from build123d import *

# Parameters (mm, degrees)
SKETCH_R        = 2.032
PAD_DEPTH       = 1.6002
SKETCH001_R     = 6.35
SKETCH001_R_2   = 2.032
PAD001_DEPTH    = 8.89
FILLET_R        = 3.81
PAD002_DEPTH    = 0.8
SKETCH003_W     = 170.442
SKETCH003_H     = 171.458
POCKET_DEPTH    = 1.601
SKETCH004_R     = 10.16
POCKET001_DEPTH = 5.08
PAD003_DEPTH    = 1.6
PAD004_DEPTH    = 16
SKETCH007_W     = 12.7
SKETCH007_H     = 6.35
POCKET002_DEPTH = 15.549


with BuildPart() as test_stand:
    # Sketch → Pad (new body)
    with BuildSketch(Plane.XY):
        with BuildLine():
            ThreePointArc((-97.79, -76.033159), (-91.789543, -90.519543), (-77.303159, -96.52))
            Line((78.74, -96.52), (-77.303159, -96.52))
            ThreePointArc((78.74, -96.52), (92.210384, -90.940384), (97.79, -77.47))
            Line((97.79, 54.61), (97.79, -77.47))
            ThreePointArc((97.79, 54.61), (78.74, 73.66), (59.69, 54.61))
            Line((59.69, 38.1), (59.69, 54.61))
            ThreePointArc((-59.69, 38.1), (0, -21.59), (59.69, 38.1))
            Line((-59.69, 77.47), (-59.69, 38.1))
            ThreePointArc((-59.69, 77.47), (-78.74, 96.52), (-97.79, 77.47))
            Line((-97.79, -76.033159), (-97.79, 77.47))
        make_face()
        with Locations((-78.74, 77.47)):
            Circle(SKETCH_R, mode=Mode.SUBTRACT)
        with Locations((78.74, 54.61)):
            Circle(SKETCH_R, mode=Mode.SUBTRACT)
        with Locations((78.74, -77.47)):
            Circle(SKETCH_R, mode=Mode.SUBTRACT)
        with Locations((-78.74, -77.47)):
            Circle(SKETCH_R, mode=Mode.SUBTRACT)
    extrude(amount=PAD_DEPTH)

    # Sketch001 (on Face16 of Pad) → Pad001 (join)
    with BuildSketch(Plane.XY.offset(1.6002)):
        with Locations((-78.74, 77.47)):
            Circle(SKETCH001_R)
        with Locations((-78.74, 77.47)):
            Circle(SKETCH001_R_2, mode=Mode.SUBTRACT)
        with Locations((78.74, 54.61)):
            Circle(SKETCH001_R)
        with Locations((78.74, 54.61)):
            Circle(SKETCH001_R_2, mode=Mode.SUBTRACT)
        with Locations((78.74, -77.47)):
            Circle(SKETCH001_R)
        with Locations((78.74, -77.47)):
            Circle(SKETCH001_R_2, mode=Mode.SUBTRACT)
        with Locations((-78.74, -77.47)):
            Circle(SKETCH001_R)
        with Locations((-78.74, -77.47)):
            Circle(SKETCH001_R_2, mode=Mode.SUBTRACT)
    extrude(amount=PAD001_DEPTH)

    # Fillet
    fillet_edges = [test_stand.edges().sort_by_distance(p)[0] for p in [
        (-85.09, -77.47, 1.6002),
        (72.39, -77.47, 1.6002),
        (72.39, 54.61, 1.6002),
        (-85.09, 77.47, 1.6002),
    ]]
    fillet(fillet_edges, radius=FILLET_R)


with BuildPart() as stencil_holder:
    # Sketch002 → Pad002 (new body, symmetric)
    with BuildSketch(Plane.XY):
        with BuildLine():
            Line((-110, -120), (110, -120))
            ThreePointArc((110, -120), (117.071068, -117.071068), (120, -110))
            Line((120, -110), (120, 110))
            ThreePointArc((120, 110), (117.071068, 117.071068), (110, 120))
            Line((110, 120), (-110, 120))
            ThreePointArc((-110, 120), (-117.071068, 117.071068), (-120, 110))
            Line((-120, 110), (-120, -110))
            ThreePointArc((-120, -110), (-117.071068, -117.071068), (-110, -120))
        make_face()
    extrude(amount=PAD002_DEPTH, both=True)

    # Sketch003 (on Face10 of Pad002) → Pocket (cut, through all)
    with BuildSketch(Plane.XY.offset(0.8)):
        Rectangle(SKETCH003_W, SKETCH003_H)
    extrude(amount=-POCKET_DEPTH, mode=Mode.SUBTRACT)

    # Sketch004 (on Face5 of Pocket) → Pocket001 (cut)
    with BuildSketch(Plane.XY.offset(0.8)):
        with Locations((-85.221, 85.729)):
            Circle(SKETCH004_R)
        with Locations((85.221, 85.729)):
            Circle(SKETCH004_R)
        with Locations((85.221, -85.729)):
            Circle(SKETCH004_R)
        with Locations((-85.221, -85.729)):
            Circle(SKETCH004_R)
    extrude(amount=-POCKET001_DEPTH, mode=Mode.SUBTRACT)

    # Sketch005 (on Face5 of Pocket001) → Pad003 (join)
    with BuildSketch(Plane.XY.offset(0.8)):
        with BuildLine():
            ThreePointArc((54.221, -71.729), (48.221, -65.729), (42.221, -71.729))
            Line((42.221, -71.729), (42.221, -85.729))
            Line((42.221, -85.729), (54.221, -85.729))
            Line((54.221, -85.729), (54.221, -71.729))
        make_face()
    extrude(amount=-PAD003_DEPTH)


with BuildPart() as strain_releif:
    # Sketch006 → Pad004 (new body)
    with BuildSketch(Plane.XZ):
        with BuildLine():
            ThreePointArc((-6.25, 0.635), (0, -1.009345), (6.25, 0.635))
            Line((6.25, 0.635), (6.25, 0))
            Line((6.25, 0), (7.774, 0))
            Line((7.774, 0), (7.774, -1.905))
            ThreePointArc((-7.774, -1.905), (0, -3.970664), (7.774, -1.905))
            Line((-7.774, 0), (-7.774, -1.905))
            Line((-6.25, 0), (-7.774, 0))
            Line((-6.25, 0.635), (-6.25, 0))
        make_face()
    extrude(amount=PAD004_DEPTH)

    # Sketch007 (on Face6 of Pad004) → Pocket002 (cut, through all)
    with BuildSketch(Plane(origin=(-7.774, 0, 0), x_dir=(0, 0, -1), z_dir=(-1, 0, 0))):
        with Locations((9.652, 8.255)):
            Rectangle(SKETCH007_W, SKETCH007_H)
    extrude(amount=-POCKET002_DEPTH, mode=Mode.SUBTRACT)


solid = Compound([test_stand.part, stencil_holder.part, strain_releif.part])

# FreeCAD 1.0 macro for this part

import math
import FreeCAD as App
import Part
import Sketcher
from FreeCAD import Vector
Q = App.Units.Quantity


def edges_at(feature, points):
    """Names of the edges that pass closest to the given points."""
    edges = feature.Shape.Edges
    near = lambda p: min(range(len(edges)), key=lambda i: edges[i].distToShape(Part.Vertex(*p))[0])
    return sorted({f"Edge{near(p) + 1}" for p in points})

doc = App.newDocument("Part")
body = doc.addObject("PartDesign::Body", "Body")

# Sketch on XY plane
sketch1 = doc.addObject("Sketcher::SketchObject", "Sketch")
body.addObject(sketch1)
sketch1.AttachmentSupport = (doc.XY_Plane, [""])
sketch1.MapMode = "FlatFace"
sketch1.addGeometry(Part.ArcOfCircle(Part.Circle(Vector(-77.3, -76, 0), Vector(0, 0, 1), 20.5), math.radians(-180), math.radians(-90)), False)
sketch1.addGeometry(Part.LineSegment(Vector(-77.3, -96.5, 0), Vector(78.7, -96.5, 0)), False)
sketch1.addGeometry(Part.ArcOfCircle(Part.Circle(Vector(78.7, -77.5, 0), Vector(0, 0, 1), 19.1), math.radians(-90), math.radians(0)), False)
sketch1.addGeometry(Part.LineSegment(Vector(97.8, -77.5, 0), Vector(97.8, 54.6, 0)), False)
sketch1.addGeometry(Part.ArcOfCircle(Part.Circle(Vector(78.7, 54.6, 0), Vector(0, 0, 1), 19.1), math.radians(0), math.radians(180)), False)
sketch1.addGeometry(Part.LineSegment(Vector(59.7, 54.6, 0), Vector(59.7, 38.1, 0)), False)
sketch1.addGeometry(Part.ArcOfCircle(Part.Circle(Vector(0, 38.1, 0), Vector(0, 0, 1), 59.7), math.radians(180), math.radians(360)), False)
sketch1.addGeometry(Part.LineSegment(Vector(-59.7, 38.1, 0), Vector(-59.7, 77.5, 0)), False)
sketch1.addGeometry(Part.ArcOfCircle(Part.Circle(Vector(-78.7, 77.5, 0), Vector(0, 0, 1), 19.1), math.radians(0), math.radians(180)), False)
sketch1.addGeometry(Part.LineSegment(Vector(-97.8, 77.5, 0), Vector(-97.8, -76, 0)), False)
sketch1.addGeometry(Part.Circle(Vector(-78.7, -77.5, 0), Vector(0, 0, 1), 2), False)
sketch1.addGeometry(Part.Circle(Vector(78.7, -77.5, 0), Vector(0, 0, 1), 2), False)
sketch1.addGeometry(Part.Circle(Vector(-78.7, 77.5, 0), Vector(0, 0, 1), 2), False)
sketch1.addGeometry(Part.Circle(Vector(78.7, 54.6, 0), Vector(0, 0, 1), 2), False)
sketch1.addConstraint(Sketcher.Constraint("Tangent", 0, 2, 1, 1))
sketch1.addConstraint(Sketcher.Constraint("Tangent", 1, 2, 2, 1))
sketch1.addConstraint(Sketcher.Constraint("Tangent", 2, 2, 3, 1))
sketch1.addConstraint(Sketcher.Constraint("Tangent", 3, 2, 4, 1))
sketch1.addConstraint(Sketcher.Constraint("Tangent", 4, 2, 5, 1))
sketch1.addConstraint(Sketcher.Constraint("Tangent", 5, 2, 6, 2))
sketch1.addConstraint(Sketcher.Constraint("Tangent", 6, 1, 7, 1))
sketch1.addConstraint(Sketcher.Constraint("Tangent", 7, 2, 8, 1))
sketch1.addConstraint(Sketcher.Constraint("Tangent", 8, 2, 9, 1))
sketch1.addConstraint(Sketcher.Constraint("Tangent", 9, 2, 0, 1))
sketch1.addConstraint(Sketcher.Constraint("Horizontal", 1))
sketch1.addConstraint(Sketcher.Constraint("Vertical", 3))
sketch1.addConstraint(Sketcher.Constraint("Vertical", 5))
sketch1.addConstraint(Sketcher.Constraint("Vertical", 7))
sketch1.addConstraint(Sketcher.Constraint("Vertical", 9))
sketch1.addConstraint(Sketcher.Constraint("Coincident", 11, 3, 2, 3))
sketch1.addConstraint(Sketcher.Constraint("Coincident", 12, 3, 8, 3))
sketch1.addConstraint(Sketcher.Constraint("Coincident", 13, 3, 4, 3))
sketch1.addConstraint(Sketcher.Constraint("Equal", 2, 4))
sketch1.addConstraint(Sketcher.Constraint("Equal", 4, 8))
sketch1.addConstraint(Sketcher.Constraint("Equal", 10, 11))
sketch1.addConstraint(Sketcher.Constraint("Equal", 11, 12))
sketch1.addConstraint(Sketcher.Constraint("Equal", 12, 13))
sketch1.addConstraint(Sketcher.Constraint("Symmetric", 2, 3, 8, 3, -1, 1))
sketch1.addConstraint(Sketcher.Constraint("Symmetric", 2, 3, 10, 3, -2))
sketch1.addConstraint(Sketcher.Constraint("Diameter", 10, Q("0.16 in")))
sketch1.addConstraint(Sketcher.Constraint("Radius", 2, Q("0.75 in")))
sketch1.addConstraint(Sketcher.Constraint("Radius", 6, Q("2.35 in")))
sketch1.addConstraint(Sketcher.Constraint("DistanceY", 3, 1, 3, 2, Q("5.2 in")))
sketch1.addConstraint(Sketcher.Constraint("DistanceY", 5, 2, 5, 1, Q("0.65 in")))
sketch1.addConstraint(Sketcher.Constraint("DistanceY", 7, 1, 7, 2, Q("1.55 in")))
sketch1.addConstraint(Sketcher.Constraint("Radius", 0, 20.486842))
pad1 = doc.addObject("PartDesign::Pad", "Pad")
body.addObject(pad1)
pad1.Profile = sketch1
pad1.Length = Q("0.063 in")

# Sketch on XY plane
sketch2 = doc.addObject("Sketcher::SketchObject", "Sketch001")
body.addObject(sketch2)
sketch2.AttachmentSupport = (doc.XY_Plane, [""])
sketch2.MapMode = "FlatFace"
sketch2.AttachmentOffset = App.Placement(Vector(0, 0, 0.063 * 25.4), App.Rotation())
sketch2.addGeometry(Part.Circle(Vector(-78.7, 77.5, 0), Vector(0, 0, 1), 6.3), False)
sketch2.addGeometry(Part.Circle(Vector(-78.7, 77.5, 0), Vector(0, 0, 1), 2), False)
sketch2.addGeometry(Part.Circle(Vector(78.7, 54.6, 0), Vector(0, 0, 1), 6.3), False)
sketch2.addGeometry(Part.Circle(Vector(78.7, 54.6, 0), Vector(0, 0, 1), 2), False)
sketch2.addGeometry(Part.Circle(Vector(78.7, -77.5, 0), Vector(0, 0, 1), 6.3), False)
sketch2.addGeometry(Part.Circle(Vector(78.7, -77.5, 0), Vector(0, 0, 1), 2), False)
sketch2.addGeometry(Part.Circle(Vector(-78.7, -77.5, 0), Vector(0, 0, 1), 6.3), False)
sketch2.addGeometry(Part.Circle(Vector(-78.7, -77.5, 0), Vector(0, 0, 1), 2), False)
sketch2.addConstraint(Sketcher.Constraint("Coincident", 1, 3, 0, 3))
sketch2.addConstraint(Sketcher.Constraint("Coincident", 3, 3, 2, 3))
sketch2.addConstraint(Sketcher.Constraint("Coincident", 5, 3, 4, 3))
sketch2.addConstraint(Sketcher.Constraint("Coincident", 7, 3, 6, 3))
sketch2.addConstraint(Sketcher.Constraint("Equal", 0, 2))
sketch2.addConstraint(Sketcher.Constraint("Equal", 1, 3))
sketch2.addConstraint(Sketcher.Constraint("Equal", 2, 4))
sketch2.addConstraint(Sketcher.Constraint("Equal", 3, 5))
sketch2.addConstraint(Sketcher.Constraint("Equal", 4, 6))
sketch2.addConstraint(Sketcher.Constraint("Equal", 5, 7))
sketch2.addConstraint(Sketcher.Constraint("Symmetric", 0, 3, 4, 3, -1, 1))
sketch2.addConstraint(Sketcher.Constraint("Symmetric", 4, 3, 6, 3, -2))
sketch2.addConstraint(Sketcher.Constraint("Vertical", 3, 3, 4, 3))
sketch2.addConstraint(Sketcher.Constraint("Diameter", 0, Q("0.5 in")))
sketch2.addConstraint(Sketcher.Constraint("Diameter", 1, Q("0.16 in")))
sketch2.addConstraint(Sketcher.Constraint("DistanceX", 0, 3, -1, 1, Q("3.1 in")))
sketch2.addConstraint(Sketcher.Constraint("DistanceY", 2, 3, 0, 3, Q("0.9 in")))
sketch2.addConstraint(Sketcher.Constraint("DistanceY", 4, 3, 2, 3, Q("5.2 in")))
pad2 = doc.addObject("PartDesign::Pad", "Pad001")
body.addObject(pad2)
pad2.Profile = sketch2
pad2.Length = Q("0.35 in")
doc.recompute()

fillet = doc.addObject("PartDesign::Fillet", "Fillet")
body.addObject(fillet)
fillet.Base = (pad2, edges_at(pad2, [
    (-85.09, -77.47, 1.6),
    (72.39, -77.47, 1.6),
    (72.39, 54.61, 1.6),
    (-85.09, 77.47, 1.6),
]))
fillet.Radius = Q("0.15 in")
body2 = doc.addObject("PartDesign::Body", "Body001")

# Sketch on XY plane
sketch3 = doc.addObject("Sketcher::SketchObject", "Sketch002")
body2.addObject(sketch3)
sketch3.AttachmentSupport = (doc.getObject("XY_Plane001"), [""])
sketch3.MapMode = "FlatFace"
sketch3.addGeometry(Part.LineSegment(Vector(-110, -120, 0), Vector(110, -120, 0)), False)
sketch3.addGeometry(Part.ArcOfCircle(Part.Circle(Vector(110, -110, 0), Vector(0, 0, 1), 10), math.radians(-90), math.radians(0)), False)
sketch3.addGeometry(Part.LineSegment(Vector(120, -110, 0), Vector(120, 110, 0)), False)
sketch3.addGeometry(Part.ArcOfCircle(Part.Circle(Vector(110, 110, 0), Vector(0, 0, 1), 10), math.radians(0), math.radians(90)), False)
sketch3.addGeometry(Part.LineSegment(Vector(110, 120, 0), Vector(-110, 120, 0)), False)
sketch3.addGeometry(Part.ArcOfCircle(Part.Circle(Vector(-110, 110, 0), Vector(0, 0, 1), 10), math.radians(90), math.radians(180)), False)
sketch3.addGeometry(Part.LineSegment(Vector(-120, 110, 0), Vector(-120, -110, 0)), False)
sketch3.addGeometry(Part.ArcOfCircle(Part.Circle(Vector(-110, -110, 0), Vector(0, 0, 1), 10), math.radians(180), math.radians(270)), False)
sketch3.addConstraint(Sketcher.Constraint("Tangent", 0, 2, 1, 1))
sketch3.addConstraint(Sketcher.Constraint("Tangent", 1, 2, 2, 1))
sketch3.addConstraint(Sketcher.Constraint("Tangent", 2, 2, 3, 1))
sketch3.addConstraint(Sketcher.Constraint("Tangent", 3, 2, 4, 1))
sketch3.addConstraint(Sketcher.Constraint("Tangent", 4, 2, 5, 1))
sketch3.addConstraint(Sketcher.Constraint("Tangent", 5, 2, 6, 1))
sketch3.addConstraint(Sketcher.Constraint("Tangent", 6, 2, 7, 1))
sketch3.addConstraint(Sketcher.Constraint("Tangent", 7, 2, 0, 1))
sketch3.addConstraint(Sketcher.Constraint("Horizontal", 0))
sketch3.addConstraint(Sketcher.Constraint("Vertical", 2))
sketch3.addConstraint(Sketcher.Constraint("Horizontal", 4))
sketch3.addConstraint(Sketcher.Constraint("Vertical", 6))
sketch3.addConstraint(Sketcher.Constraint("Equal", 1, 3))
sketch3.addConstraint(Sketcher.Constraint("Equal", 3, 5))
sketch3.addConstraint(Sketcher.Constraint("Equal", 5, 7))
sketch3.addConstraint(Sketcher.Constraint("Symmetric", 1, 3, 5, 3, -1, 1))
sketch3.addConstraint(Sketcher.Constraint("Equal", 4, 2))
sketch3.addConstraint(Sketcher.Constraint("Radius", 1, 9.999999))
sketch3.addConstraint(Sketcher.Constraint("DistanceX", 0, 1, 0, 2, 220.0))
pad3 = doc.addObject("PartDesign::Pad", "Pad002")
body2.addObject(pad3)
pad3.Profile = sketch3
pad3.Length = 1.6
pad3.Midplane = True

# Sketch on XY plane
sketch4 = doc.addObject("Sketcher::SketchObject", "Sketch003")
body2.addObject(sketch4)
sketch4.AttachmentSupport = (doc.getObject("XY_Plane001"), [""])
sketch4.MapMode = "FlatFace"
sketch4.AttachmentOffset = App.Placement(Vector(0, 0, 0.8), App.Rotation())
sketch4.addGeometry(Part.LineSegment(Vector(-85, 86, 0), Vector(-85, -86, 0)), False)
sketch4.addGeometry(Part.LineSegment(Vector(-85, -86, 0), Vector(85, -86, 0)), False)
sketch4.addGeometry(Part.LineSegment(Vector(85, -86, 0), Vector(85, 86, 0)), False)
sketch4.addGeometry(Part.LineSegment(Vector(85, 86, 0), Vector(-85, 86, 0)), False)
sketch4.addConstraint(Sketcher.Constraint("Coincident", 0, 2, 1, 1))
sketch4.addConstraint(Sketcher.Constraint("Coincident", 1, 2, 2, 1))
sketch4.addConstraint(Sketcher.Constraint("Coincident", 2, 2, 3, 1))
sketch4.addConstraint(Sketcher.Constraint("Coincident", 3, 2, 0, 1))
sketch4.addConstraint(Sketcher.Constraint("Vertical", 0))
sketch4.addConstraint(Sketcher.Constraint("Horizontal", 1))
sketch4.addConstraint(Sketcher.Constraint("Vertical", 2))
sketch4.addConstraint(Sketcher.Constraint("Horizontal", 3))
sketch4.addConstraint(Sketcher.Constraint("Symmetric", 0, 2, 2, 2, -1, 1))
sketch4.addConstraint(Sketcher.Constraint("DistanceX", 1, 1, 1, 2, 170.442))
sketch4.addConstraint(Sketcher.Constraint("DistanceY", 0, 2, 0, 1, 171.458))
pocket1 = doc.addObject("PartDesign::Pocket", "Pocket")
body2.addObject(pocket1)
pocket1.Profile = sketch4
pocket1.Type = "ThroughAll"

# Sketch on XY plane
sketch5 = doc.addObject("Sketcher::SketchObject", "Sketch004")
body2.addObject(sketch5)
sketch5.AttachmentSupport = (doc.getObject("XY_Plane001"), [""])
sketch5.MapMode = "FlatFace"
sketch5.AttachmentOffset = App.Placement(Vector(0, 0, 0.8), App.Rotation())
sketch5.addGeometry(Part.Circle(Vector(-85, 86, 0), Vector(0, 0, 1), 10), False)
sketch5.addGeometry(Part.Circle(Vector(85, 86, 0), Vector(0, 0, 1), 10), False)
sketch5.addGeometry(Part.Circle(Vector(85, -86, 0), Vector(0, 0, 1), 10), False)
sketch5.addGeometry(Part.Circle(Vector(-85, -86, 0), Vector(0, 0, 1), 10), False)
sketch5.addConstraint(Sketcher.Constraint("Equal", 0, 1))
sketch5.addConstraint(Sketcher.Constraint("Equal", 1, 2))
sketch5.addConstraint(Sketcher.Constraint("Equal", 2, 3))
sketch5.addConstraint(Sketcher.Constraint("Symmetric", 0, 3, 2, 3, -1, 1))
sketch5.addConstraint(Sketcher.Constraint("Symmetric", 1, 3, 3, 3, -1, 1))
sketch5.addConstraint(Sketcher.Constraint("Symmetric", 0, 3, 1, 3, -2))
sketch5.addConstraint(Sketcher.Constraint("Diameter", 0, Q("0.8 in")))
sketch5.addConstraint(Sketcher.Constraint("DistanceX", 0, 3, -1, 1, 85.221))
sketch5.addConstraint(Sketcher.Constraint("DistanceY", -1, 1, 0, 3, 85.729))
pocket2 = doc.addObject("PartDesign::Pocket", "Pocket001")
body2.addObject(pocket2)
pocket2.Profile = sketch5
pocket2.Length = Q("0.2 in")

# Sketch on XY plane
sketch6 = doc.addObject("Sketcher::SketchObject", "Sketch005")
body2.addObject(sketch6)
sketch6.AttachmentSupport = (doc.getObject("XY_Plane001"), [""])
sketch6.MapMode = "FlatFace"
sketch6.AttachmentOffset = App.Placement(Vector(0, 0, 0.8), App.Rotation())
sketch6.addGeometry(Part.ArcOfCircle(Part.Circle(Vector(48, -72, 0), Vector(0, 0, 1), 6), math.radians(0), math.radians(180)), False)
sketch6.addGeometry(Part.LineSegment(Vector(42, -72, 0), Vector(42, -86, 0)), False)
sketch6.addGeometry(Part.LineSegment(Vector(42, -86, 0), Vector(54, -86, 0)), False)
sketch6.addGeometry(Part.LineSegment(Vector(54, -86, 0), Vector(54, -72, 0)), False)
sketch6.addConstraint(Sketcher.Constraint("Tangent", 0, 2, 1, 1))
sketch6.addConstraint(Sketcher.Constraint("Coincident", 1, 2, 2, 1))
sketch6.addConstraint(Sketcher.Constraint("Coincident", 2, 2, 3, 1))
sketch6.addConstraint(Sketcher.Constraint("Tangent", 3, 2, 0, 1))
sketch6.addConstraint(Sketcher.Constraint("Vertical", 1))
sketch6.addConstraint(Sketcher.Constraint("Horizontal", 2))
sketch6.addConstraint(Sketcher.Constraint("Vertical", 3))
sketch6.addConstraint(Sketcher.Constraint("Radius", 0, 6.0))
sketch6.addConstraint(Sketcher.Constraint("DistanceY", 1, 2, 1, 1, 14.0))
sketch6.addConstraint(Sketcher.Constraint("DistanceX", -1, 1, 0, 3, 48.221))
sketch6.addConstraint(Sketcher.Constraint("DistanceY", 0, 3, -1, 1, 71.729))
pad4 = doc.addObject("PartDesign::Pad", "Pad003")
body2.addObject(pad4)
pad4.Profile = sketch6
pad4.Length = 1.6
pad4.Reversed = True
body3 = doc.addObject("PartDesign::Body", "Body002")

# Sketch on XZ plane
sketch7 = doc.addObject("Sketcher::SketchObject", "Sketch006")
body3.addObject(sketch7)
sketch7.AttachmentSupport = (doc.getObject("XZ_Plane002"), [""])
sketch7.MapMode = "FlatFace"
sketch7.addGeometry(Part.ArcOfCircle(Part.Circle(Vector(0, 11.7, 0), Vector(0, 0, 1), 12.7), math.radians(-119), math.radians(-61)), False)
sketch7.addGeometry(Part.LineSegment(Vector(-6.2, 0.6, 0), Vector(-6.2, 0, 0)), False)
sketch7.addGeometry(Part.LineSegment(Vector(-6.2, 0, 0), Vector(-7.8, 0, 0)), False)
sketch7.addGeometry(Part.LineSegment(Vector(-7.8, 0, 0), Vector(-7.8, -1.9, 0)), False)
sketch7.addGeometry(Part.ArcOfCircle(Part.Circle(Vector(0, 11.7, 0), Vector(0, 0, 1), 15.7), math.radians(-120), math.radians(-60)), False)
sketch7.addGeometry(Part.LineSegment(Vector(7.8, -1.9, 0), Vector(7.8, 0, 0)), False)
sketch7.addGeometry(Part.LineSegment(Vector(7.8, 0, 0), Vector(6.2, 0, 0)), False)
sketch7.addGeometry(Part.LineSegment(Vector(6.2, 0, 0), Vector(6.2, 0.6, 0)), False)
sketch7.addConstraint(Sketcher.Constraint("Coincident", 0, 1, 1, 1))
sketch7.addConstraint(Sketcher.Constraint("Coincident", 1, 2, 2, 1))
sketch7.addConstraint(Sketcher.Constraint("Coincident", 2, 2, 3, 1))
sketch7.addConstraint(Sketcher.Constraint("Coincident", 3, 2, 4, 1))
sketch7.addConstraint(Sketcher.Constraint("Coincident", 4, 2, 5, 1))
sketch7.addConstraint(Sketcher.Constraint("Coincident", 5, 2, 6, 1))
sketch7.addConstraint(Sketcher.Constraint("Coincident", 6, 2, 7, 1))
sketch7.addConstraint(Sketcher.Constraint("Coincident", 7, 2, 0, 2))
sketch7.addConstraint(Sketcher.Constraint("Vertical", 1))
sketch7.addConstraint(Sketcher.Constraint("Horizontal", 2))
sketch7.addConstraint(Sketcher.Constraint("Vertical", 3))
sketch7.addConstraint(Sketcher.Constraint("Vertical", 5))
sketch7.addConstraint(Sketcher.Constraint("Horizontal", 6))
sketch7.addConstraint(Sketcher.Constraint("Vertical", 7))
sketch7.addConstraint(Sketcher.Constraint("Coincident", 4, 3, 0, 3))
sketch7.addConstraint(Sketcher.Constraint("Symmetric", 2, 2, 5, 2, -1, 1))
sketch7.addConstraint(Sketcher.Constraint("Symmetric", 1, 2, 6, 2, -2))
sketch7.addConstraint(Sketcher.Constraint("PointOnObject", 0, 3, -2))
sketch7.addConstraint(Sketcher.Constraint("Radius", 0, Q("0.5000001 in")))
sketch7.addConstraint(Sketcher.Constraint("DistanceX", 2, 2, 2, 1, Q("0.06 in")))
sketch7.addConstraint(Sketcher.Constraint("DistanceY", 3, 2, 0, 1, Q("0.1 in")))
sketch7.addConstraint(Sketcher.Constraint("DistanceY", 1, 2, 1, 1, Q("0.025 in")))
sketch7.addConstraint(Sketcher.Constraint("DistanceX", 0, 1, -1, 1, 6.25))
pad5 = doc.addObject("PartDesign::Pad", "Pad004")
body3.addObject(pad5)
pad5.Profile = sketch7
pad5.Length = 16

# Sketch on YZ plane
sketch8 = doc.addObject("Sketcher::SketchObject", "Sketch007")
body3.addObject(sketch8)
sketch8.AttachmentSupport = (doc.getObject("YZ_Plane002"), [""])
sketch8.MapMode = "FlatFace"
sketch8.AttachmentOffset = App.Placement(Vector(0, 0, -7.774), App.Rotation())
sketch8.addGeometry(Part.LineSegment(Vector(-11, -3, 0), Vector(-5, -3, 0)), False)
sketch8.addGeometry(Part.LineSegment(Vector(-5, -3, 0), Vector(-5, -16, 0)), False)
sketch8.addGeometry(Part.LineSegment(Vector(-5, -16, 0), Vector(-11, -16, 0)), False)
sketch8.addGeometry(Part.LineSegment(Vector(-11, -16, 0), Vector(-11, -3, 0)), False)
sketch8.addConstraint(Sketcher.Constraint("Coincident", 0, 2, 1, 1))
sketch8.addConstraint(Sketcher.Constraint("Coincident", 1, 2, 2, 1))
sketch8.addConstraint(Sketcher.Constraint("Coincident", 2, 2, 3, 1))
sketch8.addConstraint(Sketcher.Constraint("Coincident", 3, 2, 0, 1))
sketch8.addConstraint(Sketcher.Constraint("Horizontal", 0))
sketch8.addConstraint(Sketcher.Constraint("Vertical", 1))
sketch8.addConstraint(Sketcher.Constraint("Horizontal", 2))
sketch8.addConstraint(Sketcher.Constraint("Vertical", 3))
sketch8.addConstraint(Sketcher.Constraint("DistanceY", 1, 2, 1, 1, Q("0.5 in")))
sketch8.addConstraint(Sketcher.Constraint("DistanceX", 0, 1, 0, 2, Q("0.25 in")))
sketch8.addConstraint(Sketcher.Constraint("DistanceX", 0, 2, -1, 1, Q("0.2 in")))
sketch8.addConstraint(Sketcher.Constraint("DistanceY", 0, 2, -1, 1, Q("0.13 in")))
pocket3 = doc.addObject("PartDesign::Pocket", "Pocket002")
body3.addObject(pocket3)
pocket3.Profile = sketch8
pocket3.Type = "ThroughAll"
pocket3.Reversed = True

doc.recompute()
